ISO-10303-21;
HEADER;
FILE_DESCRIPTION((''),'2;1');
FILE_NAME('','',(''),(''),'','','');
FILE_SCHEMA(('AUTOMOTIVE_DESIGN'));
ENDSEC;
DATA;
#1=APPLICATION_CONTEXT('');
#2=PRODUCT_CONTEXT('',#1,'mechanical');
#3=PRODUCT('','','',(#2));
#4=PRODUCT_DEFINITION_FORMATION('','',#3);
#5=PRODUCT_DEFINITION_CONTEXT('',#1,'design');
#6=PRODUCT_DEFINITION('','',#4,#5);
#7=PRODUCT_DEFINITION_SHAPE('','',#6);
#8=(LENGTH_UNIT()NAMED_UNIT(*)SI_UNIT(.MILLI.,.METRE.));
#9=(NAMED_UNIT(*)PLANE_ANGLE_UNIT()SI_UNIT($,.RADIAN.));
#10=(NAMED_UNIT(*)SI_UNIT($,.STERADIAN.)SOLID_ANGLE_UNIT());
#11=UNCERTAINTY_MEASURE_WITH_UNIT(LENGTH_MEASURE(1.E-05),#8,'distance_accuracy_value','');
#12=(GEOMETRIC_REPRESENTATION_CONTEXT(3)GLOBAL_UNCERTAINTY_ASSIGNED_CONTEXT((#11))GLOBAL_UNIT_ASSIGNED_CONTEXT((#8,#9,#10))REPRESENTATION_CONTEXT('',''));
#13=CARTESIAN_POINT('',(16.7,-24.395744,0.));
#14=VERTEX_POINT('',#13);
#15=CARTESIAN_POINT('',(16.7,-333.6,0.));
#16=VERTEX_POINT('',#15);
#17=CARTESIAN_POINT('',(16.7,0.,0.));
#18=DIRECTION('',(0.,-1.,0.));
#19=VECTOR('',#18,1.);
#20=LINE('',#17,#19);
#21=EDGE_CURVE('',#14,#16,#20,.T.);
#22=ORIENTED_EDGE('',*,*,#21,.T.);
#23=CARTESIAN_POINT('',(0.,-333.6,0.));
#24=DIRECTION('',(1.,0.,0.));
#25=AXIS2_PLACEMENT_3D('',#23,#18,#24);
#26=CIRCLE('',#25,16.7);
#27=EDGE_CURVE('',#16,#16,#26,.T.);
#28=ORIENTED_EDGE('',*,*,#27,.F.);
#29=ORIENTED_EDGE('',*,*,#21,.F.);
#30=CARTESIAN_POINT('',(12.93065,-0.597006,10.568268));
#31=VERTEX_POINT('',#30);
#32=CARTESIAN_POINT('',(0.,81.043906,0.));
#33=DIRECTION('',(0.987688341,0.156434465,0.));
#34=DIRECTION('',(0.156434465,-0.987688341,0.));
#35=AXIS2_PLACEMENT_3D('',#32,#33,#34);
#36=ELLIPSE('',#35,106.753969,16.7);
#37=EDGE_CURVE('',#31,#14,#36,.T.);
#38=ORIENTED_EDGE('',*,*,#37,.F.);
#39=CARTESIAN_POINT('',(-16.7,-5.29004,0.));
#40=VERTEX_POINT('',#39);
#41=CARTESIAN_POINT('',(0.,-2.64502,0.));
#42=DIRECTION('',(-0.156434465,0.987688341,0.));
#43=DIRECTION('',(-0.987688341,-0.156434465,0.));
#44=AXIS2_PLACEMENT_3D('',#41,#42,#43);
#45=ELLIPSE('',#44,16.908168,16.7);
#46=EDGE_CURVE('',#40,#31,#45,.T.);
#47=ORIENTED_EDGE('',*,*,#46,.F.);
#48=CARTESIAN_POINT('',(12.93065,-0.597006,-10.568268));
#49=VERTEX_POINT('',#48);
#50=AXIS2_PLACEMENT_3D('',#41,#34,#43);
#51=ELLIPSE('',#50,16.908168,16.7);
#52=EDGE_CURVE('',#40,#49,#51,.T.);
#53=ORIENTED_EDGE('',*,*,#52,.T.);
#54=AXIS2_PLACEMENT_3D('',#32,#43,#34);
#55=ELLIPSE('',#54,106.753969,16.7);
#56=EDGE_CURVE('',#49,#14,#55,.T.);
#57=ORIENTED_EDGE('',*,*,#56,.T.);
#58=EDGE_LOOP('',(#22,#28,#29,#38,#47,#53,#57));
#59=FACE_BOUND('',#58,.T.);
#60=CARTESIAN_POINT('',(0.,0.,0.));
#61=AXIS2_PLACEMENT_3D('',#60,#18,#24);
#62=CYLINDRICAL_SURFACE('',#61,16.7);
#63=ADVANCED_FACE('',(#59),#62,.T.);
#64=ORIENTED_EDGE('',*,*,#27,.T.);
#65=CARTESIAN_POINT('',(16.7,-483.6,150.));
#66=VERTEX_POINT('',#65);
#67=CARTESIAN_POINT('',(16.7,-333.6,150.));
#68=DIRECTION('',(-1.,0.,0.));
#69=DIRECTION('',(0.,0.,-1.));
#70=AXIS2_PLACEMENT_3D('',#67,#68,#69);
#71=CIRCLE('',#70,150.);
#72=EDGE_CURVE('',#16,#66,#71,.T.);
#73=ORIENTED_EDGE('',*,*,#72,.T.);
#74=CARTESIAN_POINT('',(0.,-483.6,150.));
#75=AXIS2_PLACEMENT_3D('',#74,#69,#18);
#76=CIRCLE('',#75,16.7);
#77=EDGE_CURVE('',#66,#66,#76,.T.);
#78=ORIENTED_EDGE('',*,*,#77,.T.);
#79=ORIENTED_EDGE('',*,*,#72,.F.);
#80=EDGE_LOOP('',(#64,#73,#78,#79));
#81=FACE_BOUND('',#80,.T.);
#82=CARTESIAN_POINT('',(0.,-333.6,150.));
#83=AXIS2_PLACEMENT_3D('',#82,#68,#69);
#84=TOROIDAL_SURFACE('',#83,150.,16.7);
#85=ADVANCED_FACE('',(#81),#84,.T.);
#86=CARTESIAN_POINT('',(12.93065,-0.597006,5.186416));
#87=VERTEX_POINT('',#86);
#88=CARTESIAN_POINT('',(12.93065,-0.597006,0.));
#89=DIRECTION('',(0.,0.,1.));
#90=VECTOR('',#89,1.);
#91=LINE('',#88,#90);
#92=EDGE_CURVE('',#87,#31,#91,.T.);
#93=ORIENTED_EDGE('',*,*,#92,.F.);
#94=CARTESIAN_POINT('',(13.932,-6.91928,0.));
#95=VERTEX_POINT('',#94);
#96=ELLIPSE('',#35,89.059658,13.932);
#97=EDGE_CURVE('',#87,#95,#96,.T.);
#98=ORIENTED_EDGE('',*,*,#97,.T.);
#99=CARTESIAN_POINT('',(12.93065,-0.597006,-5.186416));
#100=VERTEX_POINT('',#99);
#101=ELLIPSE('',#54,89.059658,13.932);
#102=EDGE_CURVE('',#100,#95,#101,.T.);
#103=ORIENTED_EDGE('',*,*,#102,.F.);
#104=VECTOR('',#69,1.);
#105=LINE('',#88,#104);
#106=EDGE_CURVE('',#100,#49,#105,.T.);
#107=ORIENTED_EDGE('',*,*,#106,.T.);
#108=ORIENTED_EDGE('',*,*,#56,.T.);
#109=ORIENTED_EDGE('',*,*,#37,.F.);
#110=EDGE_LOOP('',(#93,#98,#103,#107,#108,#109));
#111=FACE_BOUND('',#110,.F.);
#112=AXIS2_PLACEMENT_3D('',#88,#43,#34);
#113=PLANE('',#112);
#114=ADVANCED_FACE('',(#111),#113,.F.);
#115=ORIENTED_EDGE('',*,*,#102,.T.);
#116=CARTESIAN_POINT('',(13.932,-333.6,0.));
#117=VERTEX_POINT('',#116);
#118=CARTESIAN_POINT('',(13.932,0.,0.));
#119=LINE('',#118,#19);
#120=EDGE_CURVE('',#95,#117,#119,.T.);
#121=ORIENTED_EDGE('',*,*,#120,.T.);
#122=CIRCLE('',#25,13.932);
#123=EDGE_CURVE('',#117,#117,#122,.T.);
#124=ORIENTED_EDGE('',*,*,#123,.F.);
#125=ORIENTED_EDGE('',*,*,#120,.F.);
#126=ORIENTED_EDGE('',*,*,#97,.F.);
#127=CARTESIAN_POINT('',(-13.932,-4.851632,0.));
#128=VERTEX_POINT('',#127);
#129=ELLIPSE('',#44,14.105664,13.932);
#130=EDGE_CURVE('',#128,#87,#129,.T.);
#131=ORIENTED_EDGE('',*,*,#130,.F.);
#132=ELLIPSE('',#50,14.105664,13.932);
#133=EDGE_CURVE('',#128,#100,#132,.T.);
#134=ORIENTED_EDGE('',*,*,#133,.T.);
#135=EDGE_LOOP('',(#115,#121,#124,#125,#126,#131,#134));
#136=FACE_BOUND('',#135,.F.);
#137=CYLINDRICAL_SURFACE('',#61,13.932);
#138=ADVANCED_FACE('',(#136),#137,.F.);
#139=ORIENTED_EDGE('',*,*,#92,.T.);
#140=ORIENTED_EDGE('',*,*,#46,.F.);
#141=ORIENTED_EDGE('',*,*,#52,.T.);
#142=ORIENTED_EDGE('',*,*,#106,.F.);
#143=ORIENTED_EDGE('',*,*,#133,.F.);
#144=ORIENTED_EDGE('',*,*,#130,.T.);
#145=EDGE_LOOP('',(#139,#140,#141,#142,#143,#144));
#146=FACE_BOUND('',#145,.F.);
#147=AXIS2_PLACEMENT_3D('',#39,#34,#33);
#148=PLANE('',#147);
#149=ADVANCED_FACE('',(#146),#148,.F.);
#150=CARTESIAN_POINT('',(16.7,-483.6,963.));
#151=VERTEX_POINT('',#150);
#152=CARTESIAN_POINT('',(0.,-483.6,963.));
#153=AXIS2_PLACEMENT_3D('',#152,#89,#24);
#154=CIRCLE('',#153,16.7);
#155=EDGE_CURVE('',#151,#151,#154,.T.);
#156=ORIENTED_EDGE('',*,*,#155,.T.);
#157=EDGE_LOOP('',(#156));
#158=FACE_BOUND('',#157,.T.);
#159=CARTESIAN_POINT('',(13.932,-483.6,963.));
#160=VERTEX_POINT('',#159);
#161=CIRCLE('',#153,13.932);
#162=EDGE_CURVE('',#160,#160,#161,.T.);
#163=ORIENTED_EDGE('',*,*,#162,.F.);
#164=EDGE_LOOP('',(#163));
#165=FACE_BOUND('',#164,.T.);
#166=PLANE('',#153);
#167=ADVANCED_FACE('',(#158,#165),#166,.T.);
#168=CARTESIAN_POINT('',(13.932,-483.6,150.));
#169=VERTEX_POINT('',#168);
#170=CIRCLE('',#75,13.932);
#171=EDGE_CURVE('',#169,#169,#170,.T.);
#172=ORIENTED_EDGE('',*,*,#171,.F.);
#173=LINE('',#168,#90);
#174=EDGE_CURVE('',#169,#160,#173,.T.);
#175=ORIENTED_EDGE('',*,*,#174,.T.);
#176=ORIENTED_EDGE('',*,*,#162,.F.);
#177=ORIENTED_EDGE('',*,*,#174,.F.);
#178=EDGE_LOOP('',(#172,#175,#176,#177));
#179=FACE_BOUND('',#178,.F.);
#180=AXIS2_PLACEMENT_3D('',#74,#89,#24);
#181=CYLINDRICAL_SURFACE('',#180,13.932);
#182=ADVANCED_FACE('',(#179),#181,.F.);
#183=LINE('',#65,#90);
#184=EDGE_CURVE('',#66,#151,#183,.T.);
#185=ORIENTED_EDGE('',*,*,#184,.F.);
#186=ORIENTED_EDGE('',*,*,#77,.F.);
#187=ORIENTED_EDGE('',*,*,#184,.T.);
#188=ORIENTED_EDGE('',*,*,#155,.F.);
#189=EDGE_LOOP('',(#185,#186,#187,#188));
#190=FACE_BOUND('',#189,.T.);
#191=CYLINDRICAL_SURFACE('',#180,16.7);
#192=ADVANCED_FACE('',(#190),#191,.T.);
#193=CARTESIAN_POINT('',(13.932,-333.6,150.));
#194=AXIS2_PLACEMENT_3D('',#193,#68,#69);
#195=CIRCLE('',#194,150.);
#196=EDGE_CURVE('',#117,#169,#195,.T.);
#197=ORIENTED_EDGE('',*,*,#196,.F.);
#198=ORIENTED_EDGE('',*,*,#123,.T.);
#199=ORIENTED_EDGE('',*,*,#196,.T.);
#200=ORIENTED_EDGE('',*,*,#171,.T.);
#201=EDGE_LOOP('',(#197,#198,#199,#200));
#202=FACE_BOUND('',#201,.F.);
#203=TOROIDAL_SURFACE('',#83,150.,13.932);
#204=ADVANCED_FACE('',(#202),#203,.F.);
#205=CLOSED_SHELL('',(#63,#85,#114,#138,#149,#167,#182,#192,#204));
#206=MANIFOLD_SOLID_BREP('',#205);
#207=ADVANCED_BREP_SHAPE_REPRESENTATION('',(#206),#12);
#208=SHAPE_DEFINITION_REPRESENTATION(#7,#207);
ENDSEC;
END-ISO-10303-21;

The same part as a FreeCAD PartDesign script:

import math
import FreeCAD as App
import Part
import Sketcher
Q = App.Units.Quantity

doc = App.newDocument("Part")
body = doc.addObject("PartDesign::Body", "Body")

# Sketch on XZ plane
sketch1 = doc.addObject("Sketcher::SketchObject", "Sketch")
body.addObject(sketch1)
sketch1.AttachmentSupport = (doc.XZ_Plane, [""])
sketch1.MapMode = "FlatFace"
sketch1.addGeometry(Part.Circle(App.Vector(0, 0, 0), App.Vector(0, 0, 1), 17), False)
sketch1.addGeometry(Part.Circle(App.Vector(0, 0, 0), App.Vector(0, 0, 1), 14), False)
sketch1.addConstraint(Sketcher.Constraint("Coincident", 0, 3, -1, 1))
sketch1.addConstraint(Sketcher.Constraint("Coincident", 1, 3, -1, 1))
sketch1.addConstraint(Sketcher.Constraint("Diameter", 0, Q("33.4 mm")))
sketch1.addConstraint(Sketcher.Constraint("Diameter", 1, Q("27.864 mm")))

# Sketch on YZ plane
sketch2 = doc.addObject("Sketcher::SketchObject", "Sketch001")
body.addObject(sketch2)
sketch2.AttachmentSupport = (doc.YZ_Plane, [""])
sketch2.MapMode = "FlatFace"
sketch2.addGeometry(Part.LineSegment(App.Vector(0, 0, 0), App.Vector(-334, 0, 0)), False)
sketch2.addGeometry(Part.ArcOfCircle(Part.Circle(App.Vector(-334, 150, 0), App.Vector(0, 0, 1), 150), math.radians(180), math.radians(270)), False)
sketch2.addGeometry(Part.LineSegment(App.Vector(-484, 150, 0), App.Vector(-484, 963, 0)), False)
sketch2.addConstraint(Sketcher.Constraint("Tangent", 0, 2, 1, 2))
sketch2.addConstraint(Sketcher.Constraint("Tangent", 1, 1, 2, 1))
sketch2.addConstraint(Sketcher.Constraint("Horizontal", 0))
sketch2.addConstraint(Sketcher.Constraint("Vertical", 2))
sketch2.addConstraint(Sketcher.Constraint("Coincident", 0, 1, -1, 1))
sketch2.addConstraint(Sketcher.Constraint("Radius", 1, Q("150 mm")))
sketch2.addConstraint(Sketcher.Constraint("DistanceY", 2, 1, 2, 2, Q("813 mm")))
sketch2.addConstraint(Sketcher.Constraint("DistanceX", 0, 2, 0, 1, Q("333.6 mm")))
doc.recompute()

additivepipe = doc.addObject("PartDesign::AdditivePipe", "AdditivePipe")
body.addObject(additivepipe)
additivepipe.Profile = sketch1
additivepipe.Spine = (sketch2, ["Edge1", "Edge2", "Edge3"])

# Sketch on XY plane
sketch3 = doc.addObject("Sketcher::SketchObject", "Sketch002")
body.addObject(sketch3)
sketch3.AttachmentSupport = (doc.XY_Plane, [""])
sketch3.MapMode = "FlatFace"
sketch3.addGeometry(Part.LineSegment(App.Vector(0, 0, 0), App.Vector(-17, 3, 0)), False)
sketch3.addGeometry(Part.LineSegment(App.Vector(-17, 3, 0), App.Vector(-17, -5, 0)), False)
sketch3.addGeometry(Part.LineSegment(App.Vector(-17, -5, 0), App.Vector(13, -1, 0)), False)
sketch3.addGeometry(Part.LineSegment(App.Vector(13, -1, 0), App.Vector(17, -24, 0)), False)
sketch3.addGeometry(Part.LineSegment(App.Vector(17, -24, 0), App.Vector(17, 0, 0)), False)
sketch3.addGeometry(Part.LineSegment(App.Vector(17, 0, 0), App.Vector(0, 0, 0)), False)
sketch3.addConstraint(Sketcher.Constraint("Coincident", 0, 2, 1, 1))
sketch3.addConstraint(Sketcher.Constraint("Coincident", 1, 2, 2, 1))
sketch3.addConstraint(Sketcher.Constraint("Coincident", 2, 2, 3, 1))
sketch3.addConstraint(Sketcher.Constraint("Coincident", 3, 2, 4, 1))
sketch3.addConstraint(Sketcher.Constraint("Coincident", 4, 2, 5, 1))
sketch3.addConstraint(Sketcher.Constraint("Coincident", 5, 2, 0, 1))
sketch3.addConstraint(Sketcher.Constraint("Vertical", 1))
sketch3.addConstraint(Sketcher.Constraint("Vertical", 4))
sketch3.addConstraint(Sketcher.Constraint("Horizontal", 5))
sketch3.addConstraint(Sketcher.Constraint("Coincident", 5, 2, -1, 1))
sketch3.addConstraint(Sketcher.Constraint("Perpendicular", 2, 3))
sketch3.addConstraint(Sketcher.Constraint("Angle", 0, Q("171 deg")))
sketch3.addConstraint(Sketcher.Constraint("Angle", 2, Q("9 deg")))
sketch3.addConstraint(Sketcher.Constraint("Distance", 2, Q("30 mm")))
sketch3.addConstraint(Sketcher.Constraint("DistanceX", 5, 2, 5, 1, Q("16.7 mm")))
sketch3.addConstraint(Sketcher.Constraint("DistanceX", 0, 2, -1, 1, Q("16.7 mm")))
sketch3.addConstraint(Sketcher.Constraint("DistanceY", 1, 2, 1, 1, Q("7.93506 mm")))
pocket1 = doc.addObject("PartDesign::Pocket", "Pocket")
body.addObject(pocket1)
pocket1.Profile = sketch3
pocket1.Type = "ThroughAll"
pocket1.Midplane = True

doc.recompute()
